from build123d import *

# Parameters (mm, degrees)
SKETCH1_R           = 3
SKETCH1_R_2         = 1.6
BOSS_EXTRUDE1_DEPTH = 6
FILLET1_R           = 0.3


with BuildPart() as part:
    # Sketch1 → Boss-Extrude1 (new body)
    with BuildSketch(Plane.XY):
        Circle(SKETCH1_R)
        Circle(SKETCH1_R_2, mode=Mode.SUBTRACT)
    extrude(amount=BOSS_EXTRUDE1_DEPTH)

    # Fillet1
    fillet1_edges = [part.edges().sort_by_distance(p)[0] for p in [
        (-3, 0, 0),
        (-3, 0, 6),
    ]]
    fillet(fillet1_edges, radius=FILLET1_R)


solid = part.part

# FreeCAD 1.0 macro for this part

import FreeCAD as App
import Part
import Sketcher
from FreeCAD import Vector


def edges_at(feature, points):
    """Names of the edges that pass closest to the given points."""
    edges = feature.Shape.Edges
    near = lambda p: min(range(len(edges)), key=lambda i: edges[i].distToShape(Part.Vertex(*p))[0])
    return sorted({f"Edge{near(p) + 1}" for p in points})

doc = App.newDocument("Part")
body = doc.addObject("PartDesign::Body", "Body")

# Sketch on XY plane
sketch1 = body.newObject("Sketcher::SketchObject", "Sketch")
sketch1.AttachmentSupport = (doc.getObject("XY_Plane"), [""])
sketch1.MapMode = "FlatFace"
sketch1.addGeometry([
    Part.Circle(Vector(0, 0, 0), Vector(0, 0, 1), 3),
    Part.Circle(Vector(0, 0, 0), Vector(0, 0, 1), 1.6),
], False)
sketch1.addConstraint([
    Sketcher.Constraint("Coincident", 0, 3, -1, 1),
    Sketcher.Constraint("Coincident", 1, 3, -1, 1),
    Sketcher.Constraint("Diameter", 0, 6.0),
    Sketcher.Constraint("Diameter", 1, 3.2),
])
pad1 = body.newObject("PartDesign::Pad", "Pad")
pad1.Profile = sketch1
pad1.Length = 6
doc.recompute()

fillet = body.newObject("PartDesign::Fillet", "Fillet")
fillet.Base = (pad1, edges_at(pad1, [(-3, 0, 0), (-3, 0, 6)]))
fillet.Radius = 0.3

doc.recompute()
